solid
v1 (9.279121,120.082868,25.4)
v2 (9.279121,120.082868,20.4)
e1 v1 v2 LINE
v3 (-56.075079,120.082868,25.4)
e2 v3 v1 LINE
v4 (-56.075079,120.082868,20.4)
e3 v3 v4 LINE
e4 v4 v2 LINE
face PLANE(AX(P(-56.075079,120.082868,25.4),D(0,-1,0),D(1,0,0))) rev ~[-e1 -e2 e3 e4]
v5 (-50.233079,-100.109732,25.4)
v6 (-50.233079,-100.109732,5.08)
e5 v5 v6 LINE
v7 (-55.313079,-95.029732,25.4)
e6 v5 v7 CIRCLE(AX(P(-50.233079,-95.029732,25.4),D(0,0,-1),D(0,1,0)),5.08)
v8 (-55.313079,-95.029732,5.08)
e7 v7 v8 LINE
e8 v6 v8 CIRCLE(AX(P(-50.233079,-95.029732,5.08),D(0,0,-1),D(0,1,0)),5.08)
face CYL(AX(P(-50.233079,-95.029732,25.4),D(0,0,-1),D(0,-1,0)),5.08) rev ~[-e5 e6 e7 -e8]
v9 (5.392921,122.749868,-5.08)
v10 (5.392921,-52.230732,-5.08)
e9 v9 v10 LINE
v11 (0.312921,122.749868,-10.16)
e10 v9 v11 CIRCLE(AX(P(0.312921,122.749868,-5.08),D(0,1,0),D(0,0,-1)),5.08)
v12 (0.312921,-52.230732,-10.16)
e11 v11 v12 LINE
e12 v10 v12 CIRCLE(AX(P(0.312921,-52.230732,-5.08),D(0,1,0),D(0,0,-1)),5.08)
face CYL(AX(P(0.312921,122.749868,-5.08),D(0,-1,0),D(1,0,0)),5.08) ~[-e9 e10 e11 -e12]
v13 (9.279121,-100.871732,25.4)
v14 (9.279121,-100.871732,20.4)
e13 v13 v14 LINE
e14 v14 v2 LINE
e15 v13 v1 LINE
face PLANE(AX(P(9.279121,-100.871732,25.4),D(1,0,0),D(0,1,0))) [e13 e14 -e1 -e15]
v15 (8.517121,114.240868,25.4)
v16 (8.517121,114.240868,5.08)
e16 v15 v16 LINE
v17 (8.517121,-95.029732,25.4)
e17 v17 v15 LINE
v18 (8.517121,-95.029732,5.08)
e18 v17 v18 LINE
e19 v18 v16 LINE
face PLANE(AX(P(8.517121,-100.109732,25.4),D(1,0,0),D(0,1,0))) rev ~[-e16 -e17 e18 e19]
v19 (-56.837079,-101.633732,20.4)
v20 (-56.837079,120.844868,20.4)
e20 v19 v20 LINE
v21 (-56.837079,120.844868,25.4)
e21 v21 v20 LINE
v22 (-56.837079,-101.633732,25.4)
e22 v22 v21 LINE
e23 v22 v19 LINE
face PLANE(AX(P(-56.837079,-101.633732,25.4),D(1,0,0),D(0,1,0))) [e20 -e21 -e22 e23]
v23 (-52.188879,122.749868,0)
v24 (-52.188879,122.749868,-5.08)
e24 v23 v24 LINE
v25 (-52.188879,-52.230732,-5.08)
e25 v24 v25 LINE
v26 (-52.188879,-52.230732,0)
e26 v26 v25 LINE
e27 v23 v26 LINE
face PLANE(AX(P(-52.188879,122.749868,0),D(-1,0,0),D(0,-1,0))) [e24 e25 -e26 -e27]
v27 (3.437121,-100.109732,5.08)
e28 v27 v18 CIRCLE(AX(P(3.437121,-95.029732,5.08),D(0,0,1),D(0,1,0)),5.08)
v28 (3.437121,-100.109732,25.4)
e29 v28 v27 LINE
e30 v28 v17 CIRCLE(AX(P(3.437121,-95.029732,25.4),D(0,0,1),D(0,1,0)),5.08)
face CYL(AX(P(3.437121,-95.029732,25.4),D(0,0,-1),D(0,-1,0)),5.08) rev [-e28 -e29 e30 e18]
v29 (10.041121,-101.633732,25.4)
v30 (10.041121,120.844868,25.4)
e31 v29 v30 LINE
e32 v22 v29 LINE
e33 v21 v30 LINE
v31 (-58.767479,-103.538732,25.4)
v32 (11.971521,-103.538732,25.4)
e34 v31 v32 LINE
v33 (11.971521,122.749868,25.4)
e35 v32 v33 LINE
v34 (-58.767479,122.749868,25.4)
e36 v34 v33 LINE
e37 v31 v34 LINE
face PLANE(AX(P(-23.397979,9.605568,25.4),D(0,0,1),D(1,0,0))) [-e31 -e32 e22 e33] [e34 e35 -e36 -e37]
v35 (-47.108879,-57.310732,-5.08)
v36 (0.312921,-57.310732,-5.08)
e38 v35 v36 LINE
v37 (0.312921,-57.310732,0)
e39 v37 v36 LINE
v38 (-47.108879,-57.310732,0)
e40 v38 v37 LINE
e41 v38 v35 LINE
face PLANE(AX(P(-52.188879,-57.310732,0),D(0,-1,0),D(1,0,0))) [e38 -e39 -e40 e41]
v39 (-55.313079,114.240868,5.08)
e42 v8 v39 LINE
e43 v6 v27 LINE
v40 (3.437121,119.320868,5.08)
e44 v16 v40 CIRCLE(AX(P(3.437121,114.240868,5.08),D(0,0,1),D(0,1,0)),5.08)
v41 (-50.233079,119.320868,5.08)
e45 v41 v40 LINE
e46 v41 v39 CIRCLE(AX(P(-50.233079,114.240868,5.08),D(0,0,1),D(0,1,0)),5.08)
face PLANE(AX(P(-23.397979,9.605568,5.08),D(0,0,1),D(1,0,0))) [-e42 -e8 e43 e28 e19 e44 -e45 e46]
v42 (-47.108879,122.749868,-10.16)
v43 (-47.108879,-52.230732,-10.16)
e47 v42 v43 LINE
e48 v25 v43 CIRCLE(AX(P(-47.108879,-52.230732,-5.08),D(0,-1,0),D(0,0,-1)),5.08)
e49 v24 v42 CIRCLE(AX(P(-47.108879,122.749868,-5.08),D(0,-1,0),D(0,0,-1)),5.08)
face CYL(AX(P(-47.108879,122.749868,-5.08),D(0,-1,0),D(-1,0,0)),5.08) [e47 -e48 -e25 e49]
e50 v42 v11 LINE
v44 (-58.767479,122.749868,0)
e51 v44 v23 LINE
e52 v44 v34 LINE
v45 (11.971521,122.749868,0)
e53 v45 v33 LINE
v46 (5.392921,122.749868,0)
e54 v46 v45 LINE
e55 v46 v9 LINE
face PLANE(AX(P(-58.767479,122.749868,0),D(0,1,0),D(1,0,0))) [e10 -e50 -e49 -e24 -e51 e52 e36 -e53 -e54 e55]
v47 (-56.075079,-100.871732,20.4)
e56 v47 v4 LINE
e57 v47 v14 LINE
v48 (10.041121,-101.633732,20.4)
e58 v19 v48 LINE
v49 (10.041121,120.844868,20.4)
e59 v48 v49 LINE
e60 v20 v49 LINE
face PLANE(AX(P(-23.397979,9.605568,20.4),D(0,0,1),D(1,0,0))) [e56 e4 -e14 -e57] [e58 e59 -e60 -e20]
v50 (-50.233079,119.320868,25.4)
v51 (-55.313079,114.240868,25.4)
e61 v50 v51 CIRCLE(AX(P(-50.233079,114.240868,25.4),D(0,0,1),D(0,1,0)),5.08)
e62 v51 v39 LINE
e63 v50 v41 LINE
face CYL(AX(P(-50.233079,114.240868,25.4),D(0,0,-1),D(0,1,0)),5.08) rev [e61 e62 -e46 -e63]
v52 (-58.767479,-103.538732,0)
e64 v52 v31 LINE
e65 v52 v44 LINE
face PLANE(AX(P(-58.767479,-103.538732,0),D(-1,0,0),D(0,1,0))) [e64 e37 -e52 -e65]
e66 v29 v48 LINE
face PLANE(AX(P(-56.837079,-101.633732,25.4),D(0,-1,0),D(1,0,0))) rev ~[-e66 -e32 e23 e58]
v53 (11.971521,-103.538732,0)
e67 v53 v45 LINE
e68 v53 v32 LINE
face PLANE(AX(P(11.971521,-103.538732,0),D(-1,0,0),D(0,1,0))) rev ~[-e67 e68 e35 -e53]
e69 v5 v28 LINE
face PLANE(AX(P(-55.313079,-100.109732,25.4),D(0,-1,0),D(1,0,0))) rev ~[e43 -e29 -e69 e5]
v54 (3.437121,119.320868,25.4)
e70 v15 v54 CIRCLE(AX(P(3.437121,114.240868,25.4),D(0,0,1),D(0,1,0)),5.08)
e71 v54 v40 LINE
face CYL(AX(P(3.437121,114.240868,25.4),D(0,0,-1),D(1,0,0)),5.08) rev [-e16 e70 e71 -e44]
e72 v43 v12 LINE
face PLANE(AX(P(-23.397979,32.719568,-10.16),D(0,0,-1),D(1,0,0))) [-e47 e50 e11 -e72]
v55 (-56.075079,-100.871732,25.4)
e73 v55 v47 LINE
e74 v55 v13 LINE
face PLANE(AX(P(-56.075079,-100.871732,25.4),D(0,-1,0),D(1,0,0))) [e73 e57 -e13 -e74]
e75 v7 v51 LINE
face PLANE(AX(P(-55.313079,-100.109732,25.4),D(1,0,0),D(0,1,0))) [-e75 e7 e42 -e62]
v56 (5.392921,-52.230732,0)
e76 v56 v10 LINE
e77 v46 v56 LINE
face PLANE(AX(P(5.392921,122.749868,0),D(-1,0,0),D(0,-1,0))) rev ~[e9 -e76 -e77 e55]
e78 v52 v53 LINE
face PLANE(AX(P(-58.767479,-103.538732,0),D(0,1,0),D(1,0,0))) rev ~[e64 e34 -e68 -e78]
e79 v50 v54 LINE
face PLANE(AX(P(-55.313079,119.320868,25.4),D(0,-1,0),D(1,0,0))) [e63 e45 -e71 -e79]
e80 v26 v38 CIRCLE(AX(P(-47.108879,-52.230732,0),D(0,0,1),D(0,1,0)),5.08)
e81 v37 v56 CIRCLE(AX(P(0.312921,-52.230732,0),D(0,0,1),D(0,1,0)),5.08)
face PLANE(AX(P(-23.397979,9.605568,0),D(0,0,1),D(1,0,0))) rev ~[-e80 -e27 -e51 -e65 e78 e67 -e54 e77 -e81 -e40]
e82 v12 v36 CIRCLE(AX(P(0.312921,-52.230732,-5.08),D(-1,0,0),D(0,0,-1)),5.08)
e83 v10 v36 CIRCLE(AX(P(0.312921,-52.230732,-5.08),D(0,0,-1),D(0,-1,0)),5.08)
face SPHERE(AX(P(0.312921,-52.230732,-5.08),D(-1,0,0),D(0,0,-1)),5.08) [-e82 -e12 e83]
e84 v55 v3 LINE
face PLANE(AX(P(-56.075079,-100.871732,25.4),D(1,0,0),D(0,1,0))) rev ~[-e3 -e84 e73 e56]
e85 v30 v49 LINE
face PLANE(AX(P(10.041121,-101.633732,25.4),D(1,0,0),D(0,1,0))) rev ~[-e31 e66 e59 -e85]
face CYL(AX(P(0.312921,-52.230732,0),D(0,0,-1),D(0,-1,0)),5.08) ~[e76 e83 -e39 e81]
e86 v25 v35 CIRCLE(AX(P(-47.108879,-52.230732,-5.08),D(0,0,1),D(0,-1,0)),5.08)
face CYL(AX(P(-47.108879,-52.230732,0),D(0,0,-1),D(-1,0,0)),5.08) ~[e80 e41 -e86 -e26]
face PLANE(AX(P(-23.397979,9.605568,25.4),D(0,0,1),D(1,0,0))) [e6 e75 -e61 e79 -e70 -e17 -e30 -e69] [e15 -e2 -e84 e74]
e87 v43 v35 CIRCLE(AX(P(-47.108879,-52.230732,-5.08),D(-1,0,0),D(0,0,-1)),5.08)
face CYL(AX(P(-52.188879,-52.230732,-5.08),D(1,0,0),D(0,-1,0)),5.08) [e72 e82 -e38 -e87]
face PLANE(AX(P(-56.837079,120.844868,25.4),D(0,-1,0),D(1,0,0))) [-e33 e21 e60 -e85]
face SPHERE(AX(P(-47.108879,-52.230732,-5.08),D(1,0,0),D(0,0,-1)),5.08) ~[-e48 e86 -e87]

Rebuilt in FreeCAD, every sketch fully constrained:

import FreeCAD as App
import Part
import Sketcher
Q = App.Units.Quantity


def edges_at(feature, points):
    """Names of the edges that pass closest to the given points."""
    edges = feature.Shape.Edges
    near = lambda p: min(range(len(edges)), key=lambda i: edges[i].distToShape(Part.Vertex(*p))[0])
    return sorted({f"Edge{near(p) + 1}" for p in points})


def add_polygon(sketch, points):
    """Adds a closed chain of lines whose ends are joined by coincident constraints."""
    first, n = sketch.GeometryCount, len(points)
    for a, b in zip(points, points[1:] + points[:1]):
        sketch.addGeometry(Part.LineSegment(App.Vector(*a, 0), App.Vector(*b, 0)), False)
    for i in range(n):
        sketch.addConstraint(Sketcher.Constraint("Coincident", first + i, 2, first + (i + 1) % n, 1))

doc = App.newDocument("Part")
body = doc.addObject("PartDesign::Body", "Body")

# Sketch on XY plane
sketch1 = body.newObject("Sketcher::SketchObject", "Sketch")
sketch1.AttachmentSupport = (doc.getObject("XY_Plane"), [""])
sketch1.MapMode = "FlatFace"
add_polygon(sketch1, [(-59, 123), (-59, -104), (12, -104), (12, 123)])  # lines 0-3
sketch1.addConstraint(Sketcher.Constraint("Vertical", 0))
sketch1.addConstraint(Sketcher.Constraint("Horizontal", 1))
sketch1.addConstraint(Sketcher.Constraint("Vertical", 2))
sketch1.addConstraint(Sketcher.Constraint("Horizontal", 3))
sketch1.addConstraint(Sketcher.Constraint("DistanceX", 1, 1, 1, 2, Q("2.785 in")))
sketch1.addConstraint(Sketcher.Constraint("DistanceY", 0, 2, 0, 1, Q("8.909 in")))
sketch1.addConstraint(Sketcher.Constraint("DistanceX", 0, 2, -1, 1, Q("58.767479 mm")))
sketch1.addConstraint(Sketcher.Constraint("DistanceY", 0, 2, -1, 1, Q("103.538732 mm")))
pad1 = body.newObject("PartDesign::Pad", "Pad")
pad1.Profile = sketch1
pad1.Length = Q("1 in")

# Sketch on XY plane
sketch2 = body.newObject("Sketcher::SketchObject", "Sketch001")
sketch2.AttachmentSupport = (doc.getObject("XY_Plane"), [""])
sketch2.MapMode = "FlatFace"
sketch2.AttachmentOffset = App.Placement(App.Vector(0, 0, 1 * 25.4), App.Rotation())
add_polygon(sketch2, [(-55, 119), (-55, -100), (9, -100), (9, 119)])  # lines 0-3
sketch2.addConstraint(Sketcher.Constraint("Vertical", 0))
sketch2.addConstraint(Sketcher.Constraint("Horizontal", 1))
sketch2.addConstraint(Sketcher.Constraint("Vertical", 2))
sketch2.addConstraint(Sketcher.Constraint("Horizontal", 3))
sketch2.addConstraint(Sketcher.Constraint("DistanceX", 1, 1, 1, 2, Q("2.513 in")))
sketch2.addConstraint(Sketcher.Constraint("DistanceY", 0, 2, 0, 1, Q("8.639 in")))
sketch2.addConstraint(Sketcher.Constraint("DistanceX", 0, 2, -1, 1, Q("55.313079 mm")))
sketch2.addConstraint(Sketcher.Constraint("DistanceY", 0, 2, -1, 1, Q("100.109732 mm")))
pocket1 = body.newObject("PartDesign::Pocket", "Pocket")
pocket1.Profile = sketch2
pocket1.Length = Q("0.8 in")

# Sketch on XY plane
sketch3 = body.newObject("Sketcher::SketchObject", "Sketch002")
sketch3.AttachmentSupport = (doc.getObject("XY_Plane"), [""])
sketch3.MapMode = "FlatFace"
add_polygon(sketch3, [(-52, -57), (-52, 123), (5, 123), (5, -57)])  # lines 0-3
sketch3.addConstraint(Sketcher.Constraint("Vertical", 0))
sketch3.addConstraint(Sketcher.Constraint("Horizontal", 1))
sketch3.addConstraint(Sketcher.Constraint("Vertical", 2))
sketch3.addConstraint(Sketcher.Constraint("Horizontal", 3))
sketch3.addConstraint(Sketcher.Constraint("DistanceX", 1, 1, 1, 2, Q("2.267 in")))
sketch3.addConstraint(Sketcher.Constraint("DistanceY", 0, 1, 0, 2, Q("7.089 in")))
sketch3.addConstraint(Sketcher.Constraint("DistanceX", 0, 2, -1, 1, Q("52.188879 mm")))
sketch3.addConstraint(Sketcher.Constraint("DistanceY", -1, 1, 0, 2, Q("122.749868 mm")))
pad2 = body.newObject("PartDesign::Pad", "Pad001")
pad2.Profile = sketch3
pad2.Length = Q("0.4 in")
pad2.Reversed = True
doc.recompute()

fillet = body.newObject("PartDesign::Fillet", "Fillet")
fillet.Base = (pad2, edges_at(pad2, [
    (-23.398, -57.311, -10.16),
    (5.393, 32.72, -10.16),
    (-52.189, 32.72, -10.16),
    (5.393, -57.311, -5.08),
    (-52.189, -57.311, -5.08),
    (8.517, -100.11, 15.24),
    (8.517, 119.321, 15.24),
    (-55.313, 119.321, 15.24),
    (-55.313, -100.11, 15.24),
]))
fillet.Radius = Q("0.2 in")

# Sketch on XY plane
sketch4 = body.newObject("Sketcher::SketchObject", "Sketch003")
sketch4.AttachmentSupport = (doc.getObject("XY_Plane"), [""])
sketch4.MapMode = "FlatFace"
sketch4.AttachmentOffset = App.Placement(App.Vector(0, 0, 1 * 25.4), App.Rotation())
add_polygon(sketch4, [(-57, 121), (-57, -102), (10, -102), (10, 121)])  # lines 0-3
add_polygon(sketch4, [(9, -101), (-56, -101), (-56, 120), (9, 120)])  # lines 4-7
sketch4.addConstraint(Sketcher.Constraint("Vertical", 0))
sketch4.addConstraint(Sketcher.Constraint("Horizontal", 1))
sketch4.addConstraint(Sketcher.Constraint("Vertical", 2))
sketch4.addConstraint(Sketcher.Constraint("Horizontal", 3))
sketch4.addConstraint(Sketcher.Constraint("Horizontal", 4))
sketch4.addConstraint(Sketcher.Constraint("Vertical", 5))
sketch4.addConstraint(Sketcher.Constraint("Horizontal", 6))
sketch4.addConstraint(Sketcher.Constraint("Vertical", 7))
sketch4.addConstraint(Sketcher.Constraint("DistanceX", 1, 1, 1, 2, Q("2.633 in")))
sketch4.addConstraint(Sketcher.Constraint("DistanceX", 4, 2, 4, 1, Q("2.573 in")))
sketch4.addConstraint(Sketcher.Constraint("DistanceY", 0, 2, 0, 1, Q("8.759 in")))
sketch4.addConstraint(Sketcher.Constraint("DistanceY", 5, 1, 5, 2, Q("8.699 in")))
sketch4.addConstraint(Sketcher.Constraint("DistanceX", 0, 2, 4, 2, Q("0.03 in")))
sketch4.addConstraint(Sketcher.Constraint("DistanceY", 0, 2, 4, 2, Q("0.03 in")))
sketch4.addConstraint(Sketcher.Constraint("DistanceX", 0, 2, -1, 1, Q("56.837079 mm")))
sketch4.addConstraint(Sketcher.Constraint("DistanceY", 0, 2, -1, 1, Q("101.633732 mm")))
pocket2 = body.newObject("PartDesign::Pocket", "Pocket001")
pocket2.Profile = sketch4
pocket2.Length = 5

doc.recompute()
